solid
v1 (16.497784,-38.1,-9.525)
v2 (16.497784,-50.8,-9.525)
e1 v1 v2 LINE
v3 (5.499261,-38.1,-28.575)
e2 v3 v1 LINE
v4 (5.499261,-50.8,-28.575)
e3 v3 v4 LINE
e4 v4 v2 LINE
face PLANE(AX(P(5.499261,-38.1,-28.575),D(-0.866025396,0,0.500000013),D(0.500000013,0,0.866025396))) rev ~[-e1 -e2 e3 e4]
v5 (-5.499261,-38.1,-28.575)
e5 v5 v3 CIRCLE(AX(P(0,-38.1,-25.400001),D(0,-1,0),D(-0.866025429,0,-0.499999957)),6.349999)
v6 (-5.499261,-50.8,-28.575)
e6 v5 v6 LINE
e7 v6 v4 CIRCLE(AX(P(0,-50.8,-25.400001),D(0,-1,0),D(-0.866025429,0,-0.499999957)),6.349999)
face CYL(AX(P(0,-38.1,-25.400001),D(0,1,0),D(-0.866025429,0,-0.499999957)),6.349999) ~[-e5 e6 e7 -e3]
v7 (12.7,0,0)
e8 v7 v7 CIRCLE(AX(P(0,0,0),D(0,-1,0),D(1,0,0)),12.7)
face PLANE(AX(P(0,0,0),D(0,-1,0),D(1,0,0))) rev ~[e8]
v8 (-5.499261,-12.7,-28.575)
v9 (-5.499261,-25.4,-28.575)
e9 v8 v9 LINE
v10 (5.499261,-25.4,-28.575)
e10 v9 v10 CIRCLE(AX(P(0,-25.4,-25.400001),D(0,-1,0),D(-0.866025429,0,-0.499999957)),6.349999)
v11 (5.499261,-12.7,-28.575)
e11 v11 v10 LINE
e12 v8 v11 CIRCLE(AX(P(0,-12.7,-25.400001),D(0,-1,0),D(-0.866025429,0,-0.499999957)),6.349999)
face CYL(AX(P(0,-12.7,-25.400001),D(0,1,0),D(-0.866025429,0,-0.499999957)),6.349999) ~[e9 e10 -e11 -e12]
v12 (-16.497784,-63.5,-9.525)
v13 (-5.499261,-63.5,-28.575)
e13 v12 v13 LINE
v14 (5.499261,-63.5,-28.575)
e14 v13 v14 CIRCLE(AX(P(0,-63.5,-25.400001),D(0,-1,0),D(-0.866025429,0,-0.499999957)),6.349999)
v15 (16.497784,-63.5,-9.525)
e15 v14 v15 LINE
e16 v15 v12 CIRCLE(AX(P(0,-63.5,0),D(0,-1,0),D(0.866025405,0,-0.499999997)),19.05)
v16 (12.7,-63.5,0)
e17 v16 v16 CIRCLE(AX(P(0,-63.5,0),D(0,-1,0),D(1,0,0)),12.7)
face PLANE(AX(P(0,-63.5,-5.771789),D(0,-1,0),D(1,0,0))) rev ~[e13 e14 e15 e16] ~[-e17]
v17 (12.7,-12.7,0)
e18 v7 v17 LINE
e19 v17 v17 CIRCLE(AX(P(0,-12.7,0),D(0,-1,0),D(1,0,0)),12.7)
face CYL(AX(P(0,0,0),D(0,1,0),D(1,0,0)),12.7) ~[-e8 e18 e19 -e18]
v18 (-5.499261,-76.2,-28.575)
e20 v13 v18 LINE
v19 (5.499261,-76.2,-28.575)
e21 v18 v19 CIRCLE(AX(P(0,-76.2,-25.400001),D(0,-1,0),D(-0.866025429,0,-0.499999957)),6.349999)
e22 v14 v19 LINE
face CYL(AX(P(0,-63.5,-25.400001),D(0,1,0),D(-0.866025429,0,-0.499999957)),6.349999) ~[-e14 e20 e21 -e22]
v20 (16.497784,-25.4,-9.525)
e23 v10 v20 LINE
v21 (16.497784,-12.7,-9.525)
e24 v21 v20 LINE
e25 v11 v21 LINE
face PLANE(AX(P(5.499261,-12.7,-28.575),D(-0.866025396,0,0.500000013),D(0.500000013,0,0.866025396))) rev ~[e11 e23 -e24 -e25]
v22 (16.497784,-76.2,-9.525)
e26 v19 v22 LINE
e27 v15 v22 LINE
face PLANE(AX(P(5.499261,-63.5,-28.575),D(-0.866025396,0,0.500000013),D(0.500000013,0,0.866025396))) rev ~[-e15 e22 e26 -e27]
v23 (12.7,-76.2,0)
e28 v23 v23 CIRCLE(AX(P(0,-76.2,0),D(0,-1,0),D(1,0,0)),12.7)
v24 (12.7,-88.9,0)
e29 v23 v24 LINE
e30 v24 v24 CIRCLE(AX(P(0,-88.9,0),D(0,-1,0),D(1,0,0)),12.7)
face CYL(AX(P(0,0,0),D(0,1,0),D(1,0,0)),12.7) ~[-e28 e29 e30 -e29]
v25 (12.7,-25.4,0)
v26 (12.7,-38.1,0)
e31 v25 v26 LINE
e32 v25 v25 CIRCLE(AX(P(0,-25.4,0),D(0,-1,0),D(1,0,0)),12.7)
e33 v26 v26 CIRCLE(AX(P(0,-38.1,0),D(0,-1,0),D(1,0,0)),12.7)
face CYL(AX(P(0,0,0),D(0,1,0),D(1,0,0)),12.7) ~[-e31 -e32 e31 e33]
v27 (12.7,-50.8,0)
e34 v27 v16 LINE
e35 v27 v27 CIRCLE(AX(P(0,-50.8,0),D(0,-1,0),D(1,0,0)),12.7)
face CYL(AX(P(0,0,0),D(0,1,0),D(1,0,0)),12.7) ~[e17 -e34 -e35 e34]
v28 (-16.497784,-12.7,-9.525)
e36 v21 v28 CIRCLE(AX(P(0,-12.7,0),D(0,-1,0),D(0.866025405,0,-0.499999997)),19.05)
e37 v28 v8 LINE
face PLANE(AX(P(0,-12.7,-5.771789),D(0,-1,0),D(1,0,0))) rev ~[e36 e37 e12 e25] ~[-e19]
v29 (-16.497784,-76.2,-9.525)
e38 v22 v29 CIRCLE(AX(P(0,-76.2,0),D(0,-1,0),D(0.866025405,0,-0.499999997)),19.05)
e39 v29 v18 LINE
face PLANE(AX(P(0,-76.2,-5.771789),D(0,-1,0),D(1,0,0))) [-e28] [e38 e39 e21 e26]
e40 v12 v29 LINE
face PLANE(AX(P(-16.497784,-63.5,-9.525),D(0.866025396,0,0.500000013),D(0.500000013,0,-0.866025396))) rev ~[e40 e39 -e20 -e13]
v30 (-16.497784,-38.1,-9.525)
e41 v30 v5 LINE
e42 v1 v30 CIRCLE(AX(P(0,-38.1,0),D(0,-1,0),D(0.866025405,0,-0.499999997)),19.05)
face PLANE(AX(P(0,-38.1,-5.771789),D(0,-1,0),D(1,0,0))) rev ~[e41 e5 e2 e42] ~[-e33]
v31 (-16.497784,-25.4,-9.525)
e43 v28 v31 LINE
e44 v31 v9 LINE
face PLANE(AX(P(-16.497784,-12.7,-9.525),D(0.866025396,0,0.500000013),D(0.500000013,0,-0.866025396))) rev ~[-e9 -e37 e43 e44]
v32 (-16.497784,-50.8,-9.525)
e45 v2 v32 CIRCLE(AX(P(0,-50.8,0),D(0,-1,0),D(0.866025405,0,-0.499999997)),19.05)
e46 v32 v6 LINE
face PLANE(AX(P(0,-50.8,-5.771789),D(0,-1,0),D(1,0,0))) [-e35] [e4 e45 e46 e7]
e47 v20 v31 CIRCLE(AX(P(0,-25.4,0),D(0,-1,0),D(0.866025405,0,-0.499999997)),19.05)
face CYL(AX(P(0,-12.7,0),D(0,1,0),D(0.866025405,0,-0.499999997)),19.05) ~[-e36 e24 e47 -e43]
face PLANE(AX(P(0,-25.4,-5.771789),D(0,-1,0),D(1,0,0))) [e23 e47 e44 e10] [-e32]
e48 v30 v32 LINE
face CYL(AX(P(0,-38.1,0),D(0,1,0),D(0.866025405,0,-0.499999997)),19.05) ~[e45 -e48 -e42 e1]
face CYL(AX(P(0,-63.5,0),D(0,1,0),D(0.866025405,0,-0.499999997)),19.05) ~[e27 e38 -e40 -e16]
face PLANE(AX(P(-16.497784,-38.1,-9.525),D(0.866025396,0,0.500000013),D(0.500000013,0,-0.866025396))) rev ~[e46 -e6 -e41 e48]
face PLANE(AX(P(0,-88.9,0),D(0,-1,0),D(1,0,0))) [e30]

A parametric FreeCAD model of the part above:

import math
import FreeCAD as App
import Part
import Sketcher
Q = App.Units.Quantity

doc = App.newDocument("Part")
params = doc.addObject("Spreadsheet::Sheet", "Params")
for row, (alias, value) in enumerate([
    ("sketch1_diameter", "1 in"),
    ("pad1_length", "3.5 in"),
    ("sketch2_diameter", "1 in"),
    ("sketch2_radius", "0.75 in"),
    ("sketch2_radius2", "0.25 in"),
    ("pad2_length", "0.5 in"),
    ("sketch3_diameter", "1 in"),
    ("sketch3_radius", "0.75 in"),
    ("sketch3_radius2", "0.25 in"),
    ("pad3_length", "0.5 in"),
    ("sketch4_diameter", "1 in"),
    ("sketch4_radius", "0.75 in"),
    ("sketch4_radius2", "0.25 in"),
    ("pad4_length", "0.5 in"),
], start=1):
    params.set(f"A{row}", alias)
    params.set(f"B{row}", "=" + value)
    params.setAlias(f"B{row}", alias)

body = doc.addObject("PartDesign::Body", "Body")

sketch1 = doc.addObject("Sketcher::SketchObject", "Sketch")
body.addObject(sketch1)
sketch1.AttachmentSupport = (doc.XZ_Plane, [""])
sketch1.MapMode = "FlatFace"
sketch1.addGeometry(Part.Circle(App.Vector(0, 0, 0), App.Vector(0, 0, 1), 13), False)
sketch1.addConstraint([
    Sketcher.Constraint("Coincident", 0, 3, -1, 1),
    Sketcher.Constraint("Diameter", 0, Q("1 in")),
])
sketch1.setExpression("Constraints[1]", "Params.sketch1_diameter")
pad1 = doc.addObject("PartDesign::Pad", "Pad")
body.addObject(pad1)
pad1.Profile = sketch1
pad1.setExpression("Length", "Params.pad1_length")

sketch2 = doc.addObject("Sketcher::SketchObject", "Sketch001")
body.addObject(sketch2)
sketch2.AttachmentSupport = (doc.XZ_Plane, [""])
sketch2.MapMode = "FlatFace"
sketch2.AttachmentOffset = App.Placement(App.Vector(0, 0, 0.5 * 25.4), App.Rotation())
sketch2.addGeometry([
    Part.LineSegment(App.Vector(5, -29, 0), App.Vector(16, -10, 0)),
    Part.ArcOfCircle(Part.Circle(App.Vector(0, 0, 0), App.Vector(0, 0, 1), 19), math.radians(-30), math.radians(210)),
    Part.LineSegment(App.Vector(-16, -10, 0), App.Vector(-5, -29, 0)),
    Part.ArcOfCircle(Part.Circle(App.Vector(0, -25, 0), App.Vector(0, 0, 1), 6), math.radians(-150), math.radians(-30)),
    Part.Circle(App.Vector(0, 0, 0), App.Vector(0, 0, 1), 13),
], False)
sketch2.addConstraint([
    Sketcher.Constraint("Tangent", 0, 2, 1, 1),
    Sketcher.Constraint("Tangent", 1, 2, 2, 1),
    Sketcher.Constraint("Tangent", 2, 2, 3, 1),
    Sketcher.Constraint("Tangent", 3, 2, 0, 1),
    Sketcher.Constraint("Coincident", 1, 3, -1, 1),
    Sketcher.Constraint("Coincident", 4, 3, -1, 1),
    Sketcher.Constraint("PointOnObject", 3, 3, -2),
    Sketcher.Constraint("Diameter", 4, Q("1 in")),
    Sketcher.Constraint("Radius", 1, Q("0.75 in")),
    Sketcher.Constraint("Radius", 3, Q("0.25 in")),
    Sketcher.Constraint("DistanceY", 3, 3, -1, 1, Q("1 in")),
])
sketch2.setExpression("Constraints[7]", "Params.sketch2_diameter")
sketch2.setExpression("Constraints[8]", "Params.sketch2_radius")
sketch2.setExpression("Constraints[9]", "Params.sketch2_radius2")
pad2 = doc.addObject("PartDesign::Pad", "Pad001")
body.addObject(pad2)
pad2.Profile = sketch2
pad2.setExpression("Length", "Params.pad2_length")

sketch3 = doc.addObject("Sketcher::SketchObject", "Sketch002")
body.addObject(sketch3)
sketch3.AttachmentSupport = (doc.XZ_Plane, [""])
sketch3.MapMode = "FlatFace"
sketch3.AttachmentOffset = App.Placement(App.Vector(0, 0, 1.5 * 25.4), App.Rotation())
sketch3.addGeometry([
    Part.LineSegment(App.Vector(5, -29, 0), App.Vector(16, -10, 0)),
    Part.ArcOfCircle(Part.Circle(App.Vector(0, 0, 0), App.Vector(0, 0, 1), 19), math.radians(-30), math.radians(210)),
    Part.LineSegment(App.Vector(-16, -10, 0), App.Vector(-5, -29, 0)),
    Part.ArcOfCircle(Part.Circle(App.Vector(0, -25, 0), App.Vector(0, 0, 1), 6), math.radians(-150), math.radians(-30)),
    Part.Circle(App.Vector(0, 0, 0), App.Vector(0, 0, 1), 13),
], False)
sketch3.addConstraint([
    Sketcher.Constraint("Tangent", 0, 2, 1, 1),
    Sketcher.Constraint("Tangent", 1, 2, 2, 1),
    Sketcher.Constraint("Tangent", 2, 2, 3, 1),
    Sketcher.Constraint("Tangent", 3, 2, 0, 1),
    Sketcher.Constraint("Coincident", 1, 3, -1, 1),
    Sketcher.Constraint("Coincident", 4, 3, -1, 1),
    Sketcher.Constraint("PointOnObject", 3, 3, -2),
    Sketcher.Constraint("Diameter", 4, Q("1 in")),
    Sketcher.Constraint("Radius", 1, Q("0.75 in")),
    Sketcher.Constraint("Radius", 3, Q("0.25 in")),
    Sketcher.Constraint("DistanceY", 3, 3, -1, 1, Q("1 in")),
])
sketch3.setExpression("Constraints[7]", "Params.sketch3_diameter")
sketch3.setExpression("Constraints[8]", "Params.sketch3_radius")
sketch3.setExpression("Constraints[9]", "Params.sketch3_radius2")
pad3 = doc.addObject("PartDesign::Pad", "Pad002")
body.addObject(pad3)
pad3.Profile = sketch3
pad3.setExpression("Length", "Params.pad3_length")

sketch4 = doc.addObject("Sketcher::SketchObject", "Sketch003")
body.addObject(sketch4)
sketch4.AttachmentSupport = (doc.XZ_Plane, [""])
sketch4.MapMode = "FlatFace"
sketch4.AttachmentOffset = App.Placement(App.Vector(0, 0, 2.5 * 25.4), App.Rotation())
sketch4.addGeometry([
    Part.LineSegment(App.Vector(5, -29, 0), App.Vector(16, -10, 0)),
    Part.ArcOfCircle(Part.Circle(App.Vector(0, 0, 0), App.Vector(0, 0, 1), 19), math.radians(-30), math.radians(210)),
    Part.LineSegment(App.Vector(-16, -10, 0), App.Vector(-5, -29, 0)),
    Part.ArcOfCircle(Part.Circle(App.Vector(0, -25, 0), App.Vector(0, 0, 1), 6), math.radians(-150), math.radians(-30)),
    Part.Circle(App.Vector(0, 0, 0), App.Vector(0, 0, 1), 13),
], False)
sketch4.addConstraint([
    Sketcher.Constraint("Tangent", 0, 2, 1, 1),
    Sketcher.Constraint("Tangent", 1, 2, 2, 1),
    Sketcher.Constraint("Tangent", 2, 2, 3, 1),
    Sketcher.Constraint("Tangent", 3, 2, 0, 1),
    Sketcher.Constraint("Coincident", 1, 3, -1, 1),
    Sketcher.Constraint("Coincident", 4, 3, -1, 1),
    Sketcher.Constraint("PointOnObject", 3, 3, -2),
    Sketcher.Constraint("Diameter", 4, Q("1 in")),
    Sketcher.Constraint("Radius", 1, Q("0.75 in")),
    Sketcher.Constraint("Radius", 3, Q("0.25 in")),
    Sketcher.Constraint("DistanceY", 3, 3, -1, 1, Q("1 in")),
])
sketch4.setExpression("Constraints[7]", "Params.sketch4_diameter")
sketch4.setExpression("Constraints[8]", "Params.sketch4_radius")
sketch4.setExpression("Constraints[9]", "Params.sketch4_radius2")
pad4 = doc.addObject("PartDesign::Pad", "Pad003")
body.addObject(pad4)
pad4.Profile = sketch4
pad4.setExpression("Length", "Params.pad4_length")

doc.recompute()
